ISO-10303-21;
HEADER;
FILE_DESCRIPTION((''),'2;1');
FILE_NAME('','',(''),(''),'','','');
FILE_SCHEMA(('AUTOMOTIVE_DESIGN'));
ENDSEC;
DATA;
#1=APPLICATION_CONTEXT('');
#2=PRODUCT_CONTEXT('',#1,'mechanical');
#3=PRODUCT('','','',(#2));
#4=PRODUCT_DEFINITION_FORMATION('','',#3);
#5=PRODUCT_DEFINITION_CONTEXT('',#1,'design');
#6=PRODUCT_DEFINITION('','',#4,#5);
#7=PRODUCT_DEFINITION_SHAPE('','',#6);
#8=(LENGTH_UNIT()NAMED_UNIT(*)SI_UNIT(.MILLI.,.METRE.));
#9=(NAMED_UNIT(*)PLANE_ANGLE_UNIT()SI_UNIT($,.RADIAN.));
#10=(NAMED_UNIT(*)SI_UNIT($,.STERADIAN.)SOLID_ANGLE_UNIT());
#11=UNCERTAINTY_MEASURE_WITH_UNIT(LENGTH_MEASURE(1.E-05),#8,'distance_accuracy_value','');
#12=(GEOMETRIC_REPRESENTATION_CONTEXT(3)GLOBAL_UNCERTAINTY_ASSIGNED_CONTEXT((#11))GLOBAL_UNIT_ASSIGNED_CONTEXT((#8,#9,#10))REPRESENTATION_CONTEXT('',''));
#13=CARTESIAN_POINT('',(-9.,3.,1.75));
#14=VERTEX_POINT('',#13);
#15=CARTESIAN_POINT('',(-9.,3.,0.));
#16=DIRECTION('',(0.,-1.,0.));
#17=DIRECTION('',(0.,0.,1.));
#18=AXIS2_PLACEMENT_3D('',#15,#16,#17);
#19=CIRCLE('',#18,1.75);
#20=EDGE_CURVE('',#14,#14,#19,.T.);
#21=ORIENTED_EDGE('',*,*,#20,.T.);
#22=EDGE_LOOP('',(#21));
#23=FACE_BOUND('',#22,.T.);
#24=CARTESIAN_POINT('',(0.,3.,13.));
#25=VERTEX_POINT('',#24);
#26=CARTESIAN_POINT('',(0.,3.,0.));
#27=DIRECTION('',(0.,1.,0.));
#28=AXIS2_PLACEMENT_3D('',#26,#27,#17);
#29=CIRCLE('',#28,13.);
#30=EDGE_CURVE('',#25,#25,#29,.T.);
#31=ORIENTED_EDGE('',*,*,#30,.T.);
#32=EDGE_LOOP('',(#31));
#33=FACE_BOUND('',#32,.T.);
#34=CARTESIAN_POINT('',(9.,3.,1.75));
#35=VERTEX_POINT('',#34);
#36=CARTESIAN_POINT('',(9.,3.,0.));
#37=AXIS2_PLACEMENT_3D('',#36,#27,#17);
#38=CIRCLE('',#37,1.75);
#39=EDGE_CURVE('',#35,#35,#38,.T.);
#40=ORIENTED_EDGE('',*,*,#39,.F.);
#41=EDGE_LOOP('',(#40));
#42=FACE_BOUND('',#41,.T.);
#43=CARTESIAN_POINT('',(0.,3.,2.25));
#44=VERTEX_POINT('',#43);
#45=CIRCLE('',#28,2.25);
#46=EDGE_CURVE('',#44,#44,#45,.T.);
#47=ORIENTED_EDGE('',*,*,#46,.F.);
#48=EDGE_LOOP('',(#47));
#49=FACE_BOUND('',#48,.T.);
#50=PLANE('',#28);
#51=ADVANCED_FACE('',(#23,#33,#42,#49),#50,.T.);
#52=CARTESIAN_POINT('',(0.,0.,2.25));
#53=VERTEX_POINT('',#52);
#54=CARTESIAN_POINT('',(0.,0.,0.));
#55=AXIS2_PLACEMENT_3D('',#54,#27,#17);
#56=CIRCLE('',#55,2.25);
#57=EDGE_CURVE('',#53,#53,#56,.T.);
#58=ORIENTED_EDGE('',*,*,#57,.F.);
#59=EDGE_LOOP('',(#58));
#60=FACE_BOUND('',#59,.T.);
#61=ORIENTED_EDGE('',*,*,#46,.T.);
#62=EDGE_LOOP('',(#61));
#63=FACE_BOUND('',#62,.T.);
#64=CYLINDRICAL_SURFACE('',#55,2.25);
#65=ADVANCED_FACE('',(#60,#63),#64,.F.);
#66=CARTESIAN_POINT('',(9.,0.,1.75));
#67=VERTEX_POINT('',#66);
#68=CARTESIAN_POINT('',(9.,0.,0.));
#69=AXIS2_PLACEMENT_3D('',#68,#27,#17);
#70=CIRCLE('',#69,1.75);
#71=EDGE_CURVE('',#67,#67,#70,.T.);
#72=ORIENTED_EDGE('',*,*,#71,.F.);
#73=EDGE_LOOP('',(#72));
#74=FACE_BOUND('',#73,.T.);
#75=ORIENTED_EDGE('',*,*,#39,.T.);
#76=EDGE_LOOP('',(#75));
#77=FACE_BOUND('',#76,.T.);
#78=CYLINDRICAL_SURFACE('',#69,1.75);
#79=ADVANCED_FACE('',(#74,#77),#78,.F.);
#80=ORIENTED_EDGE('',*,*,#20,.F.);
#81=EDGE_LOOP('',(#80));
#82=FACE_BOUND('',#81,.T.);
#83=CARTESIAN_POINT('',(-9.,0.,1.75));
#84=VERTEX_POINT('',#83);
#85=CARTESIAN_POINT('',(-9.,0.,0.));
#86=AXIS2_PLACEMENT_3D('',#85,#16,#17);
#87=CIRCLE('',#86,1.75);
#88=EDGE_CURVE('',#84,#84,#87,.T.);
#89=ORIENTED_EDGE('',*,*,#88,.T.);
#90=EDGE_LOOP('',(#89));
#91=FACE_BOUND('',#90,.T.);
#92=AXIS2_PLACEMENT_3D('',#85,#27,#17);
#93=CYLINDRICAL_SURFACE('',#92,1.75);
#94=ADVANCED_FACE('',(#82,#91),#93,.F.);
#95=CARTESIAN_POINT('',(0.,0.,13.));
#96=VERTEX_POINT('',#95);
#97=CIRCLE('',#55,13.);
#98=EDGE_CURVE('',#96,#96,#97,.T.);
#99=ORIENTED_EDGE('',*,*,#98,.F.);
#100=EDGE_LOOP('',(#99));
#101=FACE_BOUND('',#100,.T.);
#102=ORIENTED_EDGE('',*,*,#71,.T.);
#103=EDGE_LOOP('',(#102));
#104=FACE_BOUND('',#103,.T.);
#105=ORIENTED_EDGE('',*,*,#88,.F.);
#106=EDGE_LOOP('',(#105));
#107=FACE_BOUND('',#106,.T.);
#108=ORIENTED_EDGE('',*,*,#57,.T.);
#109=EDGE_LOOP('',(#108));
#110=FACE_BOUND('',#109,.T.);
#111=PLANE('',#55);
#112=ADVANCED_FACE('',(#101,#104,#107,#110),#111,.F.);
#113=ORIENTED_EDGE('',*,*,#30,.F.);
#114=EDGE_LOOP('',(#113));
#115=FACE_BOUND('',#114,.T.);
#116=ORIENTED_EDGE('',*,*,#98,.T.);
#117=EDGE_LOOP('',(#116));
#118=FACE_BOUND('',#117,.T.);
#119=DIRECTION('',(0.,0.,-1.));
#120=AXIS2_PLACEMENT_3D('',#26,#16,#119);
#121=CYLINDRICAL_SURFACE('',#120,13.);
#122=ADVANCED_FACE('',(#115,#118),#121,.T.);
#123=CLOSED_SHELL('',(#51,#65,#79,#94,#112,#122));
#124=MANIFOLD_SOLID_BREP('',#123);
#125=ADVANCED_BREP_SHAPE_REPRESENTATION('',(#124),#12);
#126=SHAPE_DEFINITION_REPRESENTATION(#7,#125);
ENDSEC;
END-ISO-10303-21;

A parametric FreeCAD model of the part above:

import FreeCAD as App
import Part
import Sketcher
from FreeCAD import Vector
Q = App.Units.Quantity

doc = App.newDocument("Part")
body = doc.addObject("PartDesign::Body", "Body")

sketch1 = body.newObject("Sketcher::SketchObject", "Sketch")
sketch1.AttachmentSupport = (doc.getObject("XZ_Plane"), [""])
sketch1.MapMode = "FlatFace"
sketch1.addGeometry(Part.Circle(Vector(0, 0, 0), Vector(0, 0, 1), 13), False)
sketch1.addConstraint(Sketcher.Constraint("Coincident", 0, 3, -1, 1))
sketch1.addConstraint(Sketcher.Constraint("Diameter", 0, Q("26 mm")))
pad1 = body.newObject("PartDesign::Pad", "Pad")
pad1.Profile = sketch1
pad1.Length = 3
pad1.Reversed = True

sketch2 = body.newObject("Sketcher::SketchObject", "Sketch001")
sketch2.AttachmentSupport = (doc.getObject("XZ_Plane"), [""])
sketch2.MapMode = "FlatFace"
sketch2.AttachmentOffset = App.Placement(Vector(0, 0, -3), App.Rotation())
sketch2.addGeometry(Part.Circle(Vector(0, 0, 0), Vector(0, 0, 1), 2.2), False)
sketch2.addConstraint(Sketcher.Constraint("Coincident", 0, 3, -1, 1))
sketch2.addConstraint(Sketcher.Constraint("Diameter", 0, Q("4.5 mm")))
pocket1 = body.newObject("PartDesign::Pocket", "Pocket")
pocket1.Profile = sketch2
pocket1.Length = 3
pocket1.Reversed = True

sketch3 = body.newObject("Sketcher::SketchObject", "Sketch002")
sketch3.AttachmentSupport = (doc.getObject("XZ_Plane"), [""])
sketch3.MapMode = "FlatFace"
sketch3.AttachmentOffset = App.Placement(Vector(0, 0, -3), App.Rotation())
sketch3.addGeometry(Part.Circle(Vector(9, 0, 0), Vector(0, 0, 1), 1.8), False)
sketch3.addConstraint(Sketcher.Constraint("PointOnObject", 0, 3, -1))
sketch3.addConstraint(Sketcher.Constraint("Diameter", 0, Q("3.5 mm")))
sketch3.addConstraint(Sketcher.Constraint("DistanceX", -1, 1, 0, 3, Q("9 mm")))
pocket2 = body.newObject("PartDesign::Pocket", "Pocket001")
pocket2.Profile = sketch3
pocket2.Length = 3
pocket2.Reversed = True
doc.recompute()

mirrored = body.newObject("PartDesign::Mirrored", "Mirrored")
mirrored.Originals = [pocket2]
mirrored.MirrorPlane = (doc.getObject("YZ_Plane"), [""])
body.Tip = mirrored

doc.recompute()
